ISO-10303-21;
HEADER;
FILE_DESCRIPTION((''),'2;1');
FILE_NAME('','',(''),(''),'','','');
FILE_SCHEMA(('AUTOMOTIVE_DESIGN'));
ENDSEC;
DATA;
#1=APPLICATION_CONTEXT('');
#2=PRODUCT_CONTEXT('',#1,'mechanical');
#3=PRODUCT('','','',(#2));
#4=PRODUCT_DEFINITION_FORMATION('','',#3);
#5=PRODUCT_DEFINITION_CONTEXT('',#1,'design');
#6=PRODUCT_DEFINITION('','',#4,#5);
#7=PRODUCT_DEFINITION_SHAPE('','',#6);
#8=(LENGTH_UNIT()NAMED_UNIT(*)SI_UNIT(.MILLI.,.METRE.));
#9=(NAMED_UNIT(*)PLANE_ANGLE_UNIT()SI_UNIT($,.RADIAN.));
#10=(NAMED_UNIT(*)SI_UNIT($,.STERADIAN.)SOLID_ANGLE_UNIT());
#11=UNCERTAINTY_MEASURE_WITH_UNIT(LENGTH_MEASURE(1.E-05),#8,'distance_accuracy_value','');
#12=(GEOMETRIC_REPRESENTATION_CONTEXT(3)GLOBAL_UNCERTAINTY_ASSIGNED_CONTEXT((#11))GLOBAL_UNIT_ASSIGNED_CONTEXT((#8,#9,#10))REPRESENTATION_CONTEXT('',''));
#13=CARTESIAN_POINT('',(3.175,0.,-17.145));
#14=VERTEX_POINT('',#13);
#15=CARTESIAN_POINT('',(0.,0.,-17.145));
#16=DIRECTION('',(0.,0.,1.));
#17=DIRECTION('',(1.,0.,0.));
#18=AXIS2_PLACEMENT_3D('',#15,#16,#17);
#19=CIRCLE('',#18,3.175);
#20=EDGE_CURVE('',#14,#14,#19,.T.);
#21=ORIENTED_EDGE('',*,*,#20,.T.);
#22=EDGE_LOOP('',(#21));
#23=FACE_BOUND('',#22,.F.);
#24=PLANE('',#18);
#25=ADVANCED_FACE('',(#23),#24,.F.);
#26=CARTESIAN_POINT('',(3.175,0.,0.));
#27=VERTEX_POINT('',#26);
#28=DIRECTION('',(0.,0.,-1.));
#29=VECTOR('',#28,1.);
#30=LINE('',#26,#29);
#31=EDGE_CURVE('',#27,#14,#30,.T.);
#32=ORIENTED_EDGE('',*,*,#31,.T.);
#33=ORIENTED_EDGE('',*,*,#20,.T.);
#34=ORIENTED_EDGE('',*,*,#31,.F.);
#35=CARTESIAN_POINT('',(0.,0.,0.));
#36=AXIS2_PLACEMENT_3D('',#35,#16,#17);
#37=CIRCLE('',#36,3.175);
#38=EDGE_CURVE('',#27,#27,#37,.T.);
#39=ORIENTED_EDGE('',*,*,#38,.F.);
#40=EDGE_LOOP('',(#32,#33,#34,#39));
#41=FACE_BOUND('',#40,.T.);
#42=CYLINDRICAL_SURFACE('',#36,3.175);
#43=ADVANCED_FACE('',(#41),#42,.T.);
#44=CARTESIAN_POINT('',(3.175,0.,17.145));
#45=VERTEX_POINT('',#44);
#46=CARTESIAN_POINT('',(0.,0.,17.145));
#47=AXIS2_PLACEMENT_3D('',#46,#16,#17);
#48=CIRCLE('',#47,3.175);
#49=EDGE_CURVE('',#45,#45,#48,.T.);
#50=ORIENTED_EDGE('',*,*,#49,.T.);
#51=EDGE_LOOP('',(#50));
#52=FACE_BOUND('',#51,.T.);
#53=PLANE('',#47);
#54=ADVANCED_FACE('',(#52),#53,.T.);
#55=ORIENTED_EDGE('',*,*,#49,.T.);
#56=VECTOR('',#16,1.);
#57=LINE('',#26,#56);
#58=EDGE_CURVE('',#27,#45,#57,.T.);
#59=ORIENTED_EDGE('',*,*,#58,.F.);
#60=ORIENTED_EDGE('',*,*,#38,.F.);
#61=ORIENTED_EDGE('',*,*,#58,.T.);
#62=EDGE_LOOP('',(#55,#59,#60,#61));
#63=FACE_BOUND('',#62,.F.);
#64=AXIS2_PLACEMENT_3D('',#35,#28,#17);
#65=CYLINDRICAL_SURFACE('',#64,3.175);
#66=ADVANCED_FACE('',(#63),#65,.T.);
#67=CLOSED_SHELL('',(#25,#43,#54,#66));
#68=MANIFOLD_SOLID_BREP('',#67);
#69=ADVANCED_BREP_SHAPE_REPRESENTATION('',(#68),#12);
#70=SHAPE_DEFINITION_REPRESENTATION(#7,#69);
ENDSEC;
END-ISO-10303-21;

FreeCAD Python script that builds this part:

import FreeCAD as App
import Part
import Sketcher

V = App.Vector
Q = App.Units.Quantity

doc = App.newDocument("Part")
params = doc.addObject("Spreadsheet::Sheet", "Params")
for row, (alias, value) in enumerate([
    ("sketch1_diameter", "0.25 in"),
    ("pad1_length", "1.35 in"),
], start=1):
    params.set(f"A{row}", alias)
    params.set(f"B{row}", "=" + value)
    params.setAlias(f"B{row}", alias)

body = doc.addObject("PartDesign::Body", "Body")

# Sketch on XY plane
sketch1 = body.newObject("Sketcher::SketchObject", "Sketch")
sketch1.AttachmentSupport = (doc.getObject("XY_Plane"), [""])
sketch1.MapMode = "FlatFace"
sketch1.addGeometry(Part.Circle(V(0, 0, 0), V(0, 0, 1), 3.2), False)
sketch1.addConstraint(Sketcher.Constraint("Coincident", 0, 3, -1, 1))
sketch1.addConstraint(Sketcher.Constraint("Diameter", 0, Q("0.25 in")))
sketch1.setExpression("Constraints[1]", "Params.sketch1_diameter")
pad1 = body.newObject("PartDesign::Pad", "Pad")
pad1.Profile = sketch1
pad1.setExpression("Length", "Params.pad1_length")
pad1.Midplane = True

doc.recompute()
